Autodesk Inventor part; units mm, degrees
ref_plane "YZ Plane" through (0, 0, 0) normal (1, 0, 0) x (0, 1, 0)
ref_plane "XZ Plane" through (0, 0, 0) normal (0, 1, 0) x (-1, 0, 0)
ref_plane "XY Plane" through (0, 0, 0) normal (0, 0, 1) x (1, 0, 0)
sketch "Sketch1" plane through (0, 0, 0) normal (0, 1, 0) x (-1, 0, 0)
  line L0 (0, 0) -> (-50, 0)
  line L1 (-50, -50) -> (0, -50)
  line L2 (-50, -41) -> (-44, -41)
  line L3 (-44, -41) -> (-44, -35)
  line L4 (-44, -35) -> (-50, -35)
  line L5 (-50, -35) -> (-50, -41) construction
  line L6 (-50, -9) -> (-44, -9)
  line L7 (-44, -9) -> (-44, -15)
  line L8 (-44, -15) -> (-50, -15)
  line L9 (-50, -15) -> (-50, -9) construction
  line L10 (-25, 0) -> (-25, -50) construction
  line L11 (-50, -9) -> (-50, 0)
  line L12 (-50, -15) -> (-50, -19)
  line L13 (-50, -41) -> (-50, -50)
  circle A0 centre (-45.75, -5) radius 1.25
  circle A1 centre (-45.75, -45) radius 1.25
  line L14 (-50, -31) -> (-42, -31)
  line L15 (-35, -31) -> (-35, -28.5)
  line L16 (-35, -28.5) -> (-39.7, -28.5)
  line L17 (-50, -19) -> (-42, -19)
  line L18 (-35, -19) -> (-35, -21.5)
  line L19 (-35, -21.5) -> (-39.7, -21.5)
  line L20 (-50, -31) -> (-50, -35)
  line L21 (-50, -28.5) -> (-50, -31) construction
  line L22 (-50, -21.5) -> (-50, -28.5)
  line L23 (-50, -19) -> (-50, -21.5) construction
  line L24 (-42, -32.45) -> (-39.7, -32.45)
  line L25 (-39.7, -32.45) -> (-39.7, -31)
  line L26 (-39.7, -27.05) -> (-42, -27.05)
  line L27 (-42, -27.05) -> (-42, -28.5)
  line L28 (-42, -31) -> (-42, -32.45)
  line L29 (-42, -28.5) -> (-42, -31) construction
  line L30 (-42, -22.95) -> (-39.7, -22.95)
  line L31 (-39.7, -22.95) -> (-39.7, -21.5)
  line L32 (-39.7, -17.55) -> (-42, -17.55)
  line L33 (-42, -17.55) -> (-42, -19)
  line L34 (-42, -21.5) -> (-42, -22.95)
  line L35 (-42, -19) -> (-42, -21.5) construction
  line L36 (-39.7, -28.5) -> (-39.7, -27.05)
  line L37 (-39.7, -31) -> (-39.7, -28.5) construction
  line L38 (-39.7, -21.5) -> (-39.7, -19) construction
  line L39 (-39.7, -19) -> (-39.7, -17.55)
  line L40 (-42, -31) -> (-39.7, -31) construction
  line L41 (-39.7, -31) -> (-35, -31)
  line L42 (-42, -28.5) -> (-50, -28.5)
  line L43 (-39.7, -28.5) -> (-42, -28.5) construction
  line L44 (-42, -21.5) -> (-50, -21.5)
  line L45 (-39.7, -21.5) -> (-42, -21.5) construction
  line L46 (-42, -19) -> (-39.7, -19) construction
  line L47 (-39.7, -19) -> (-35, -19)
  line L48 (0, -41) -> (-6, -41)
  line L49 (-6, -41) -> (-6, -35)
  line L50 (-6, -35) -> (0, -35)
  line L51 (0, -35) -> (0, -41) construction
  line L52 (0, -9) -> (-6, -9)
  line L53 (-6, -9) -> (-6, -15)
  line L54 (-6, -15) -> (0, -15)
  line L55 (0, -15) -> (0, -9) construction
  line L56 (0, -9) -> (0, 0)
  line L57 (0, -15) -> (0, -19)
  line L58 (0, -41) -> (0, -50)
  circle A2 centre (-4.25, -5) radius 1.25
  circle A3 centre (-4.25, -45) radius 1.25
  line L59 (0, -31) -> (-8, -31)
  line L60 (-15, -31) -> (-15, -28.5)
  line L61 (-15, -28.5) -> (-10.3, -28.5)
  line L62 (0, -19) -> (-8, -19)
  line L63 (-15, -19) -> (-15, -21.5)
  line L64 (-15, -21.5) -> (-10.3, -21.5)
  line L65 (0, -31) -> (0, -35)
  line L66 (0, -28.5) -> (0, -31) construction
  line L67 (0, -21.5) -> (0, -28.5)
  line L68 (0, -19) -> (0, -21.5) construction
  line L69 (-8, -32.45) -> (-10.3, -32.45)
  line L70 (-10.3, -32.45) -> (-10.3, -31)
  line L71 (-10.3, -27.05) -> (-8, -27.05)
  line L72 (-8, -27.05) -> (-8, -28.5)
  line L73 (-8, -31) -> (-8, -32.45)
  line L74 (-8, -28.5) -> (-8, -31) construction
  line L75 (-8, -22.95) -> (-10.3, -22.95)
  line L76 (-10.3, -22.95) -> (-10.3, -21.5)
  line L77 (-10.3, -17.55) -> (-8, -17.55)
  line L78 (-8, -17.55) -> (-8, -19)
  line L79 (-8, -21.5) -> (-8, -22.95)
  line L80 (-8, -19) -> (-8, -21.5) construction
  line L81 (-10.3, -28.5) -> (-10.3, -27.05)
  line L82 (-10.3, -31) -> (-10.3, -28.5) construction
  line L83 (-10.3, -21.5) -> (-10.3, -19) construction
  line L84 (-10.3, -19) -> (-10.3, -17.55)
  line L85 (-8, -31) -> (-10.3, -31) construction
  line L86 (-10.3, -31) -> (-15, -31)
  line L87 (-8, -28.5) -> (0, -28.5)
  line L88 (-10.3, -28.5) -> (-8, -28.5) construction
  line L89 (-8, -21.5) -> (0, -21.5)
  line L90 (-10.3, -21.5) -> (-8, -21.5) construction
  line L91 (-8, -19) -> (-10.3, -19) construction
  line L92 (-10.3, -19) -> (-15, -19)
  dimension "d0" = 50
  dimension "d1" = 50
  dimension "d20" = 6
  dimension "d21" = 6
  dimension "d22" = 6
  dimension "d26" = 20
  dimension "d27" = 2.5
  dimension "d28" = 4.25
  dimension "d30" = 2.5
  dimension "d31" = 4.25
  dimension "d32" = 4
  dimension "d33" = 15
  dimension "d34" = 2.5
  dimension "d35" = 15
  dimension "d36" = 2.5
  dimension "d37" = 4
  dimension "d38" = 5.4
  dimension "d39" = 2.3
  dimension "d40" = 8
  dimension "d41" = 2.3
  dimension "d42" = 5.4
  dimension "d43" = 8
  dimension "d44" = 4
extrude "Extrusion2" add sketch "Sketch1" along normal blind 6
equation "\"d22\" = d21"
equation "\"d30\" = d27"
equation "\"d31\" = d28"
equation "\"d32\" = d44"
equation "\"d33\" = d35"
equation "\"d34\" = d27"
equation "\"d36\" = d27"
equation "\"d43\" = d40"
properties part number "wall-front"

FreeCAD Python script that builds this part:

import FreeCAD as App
import Part
import Sketcher

V = App.Vector


def add_polygon(sketch, points):
    """Adds a closed chain of lines whose ends are joined by coincident constraints."""
    first, n = sketch.GeometryCount, len(points)
    for a, b in zip(points, points[1:] + points[:1]):
        sketch.addGeometry(Part.LineSegment(App.Vector(*a, 0), App.Vector(*b, 0)), False)
    for i in range(n):
        sketch.addConstraint(Sketcher.Constraint("Coincident", first + i, 2, first + (i + 1) % n, 1))

doc = App.newDocument("Part")
body = doc.addObject("PartDesign::Body", "Body")

# Sketch on XZ plane
sketch1 = body.newObject("Sketcher::SketchObject", "Sketch")
sketch1.AttachmentSupport = (doc.getObject("XZ_Plane"), [""])
sketch1.MapMode = "FlatFace"
add_polygon(sketch1, [(0, -9), (0, 0), (50, 0), (50, -9), (44, -9), (44, -15), (50, -15), (50, -19), (42, -19), (42, -17.6), (39.7, -17.6), (39.7, -19), (35, -19), (35, -21.5), (39.7, -21.5), (39.7, -22.9), (42, -22.9), (42, -21.5), (50, -21.5), (50, -28.5), (42, -28.5), (42, -27.1), (39.7, -27.1), (39.7, -28.5), (35, -28.5), (35, -31), (39.7, -31), (39.7, -32.5), (42, -32.5), (42, -31), (50, -31), (50, -35), (44, -35), (44, -41), (50, -41), (50, -50), (0, -50), (0, -41), (6, -41), (6, -35), (0, -35), (0, -31), (8, -31), (8, -32.5), (10.3, -32.5), (10.3, -31), (15, -31), (15, -28.5), (10.3, -28.5), (10.3, -27.1), (8, -27.1), (8, -28.5), (0, -28.5), (0, -21.5), (8, -21.5), (8, -22.9), (10.3, -22.9), (10.3, -21.5), (15, -21.5), (15, -19), (10.3, -19), (10.3, -17.6), (8, -17.6), (8, -19), (0, -19), (0, -15), (6, -15), (6, -9)])  # lines 0-67
sketch1.addGeometry(Part.Circle(V(45.8, -45, 0), V(0, 0, 1), 1.2), False)  # 68
sketch1.addGeometry(Part.Circle(V(4.2, -45, 0), V(0, 0, 1), 1.2), False)  # 69
sketch1.addGeometry(Part.Circle(V(45.8, -5, 0), V(0, 0, 1), 1.2), False)  # 70
sketch1.addGeometry(Part.Circle(V(4.2, -5, 0), V(0, 0, 1), 1.2), False)  # 71
sketch1.addConstraint(Sketcher.Constraint("Vertical", 0))
sketch1.addConstraint(Sketcher.Constraint("Horizontal", 1))
sketch1.addConstraint(Sketcher.Constraint("Vertical", 2))
sketch1.addConstraint(Sketcher.Constraint("Horizontal", 3))
sketch1.addConstraint(Sketcher.Constraint("Vertical", 4))
sketch1.addConstraint(Sketcher.Constraint("Horizontal", 5))
sketch1.addConstraint(Sketcher.Constraint("Vertical", 6))
sketch1.addConstraint(Sketcher.Constraint("Horizontal", 7))
sketch1.addConstraint(Sketcher.Constraint("Vertical", 8))
sketch1.addConstraint(Sketcher.Constraint("Horizontal", 9))
sketch1.addConstraint(Sketcher.Constraint("Vertical", 10))
sketch1.addConstraint(Sketcher.Constraint("Horizontal", 11))
sketch1.addConstraint(Sketcher.Constraint("Vertical", 12))
sketch1.addConstraint(Sketcher.Constraint("Horizontal", 13))
sketch1.addConstraint(Sketcher.Constraint("Vertical", 14))
sketch1.addConstraint(Sketcher.Constraint("Horizontal", 15))
sketch1.addConstraint(Sketcher.Constraint("Vertical", 16))
sketch1.addConstraint(Sketcher.Constraint("Horizontal", 17))
sketch1.addConstraint(Sketcher.Constraint("Vertical", 18))
sketch1.addConstraint(Sketcher.Constraint("Horizontal", 19))
sketch1.addConstraint(Sketcher.Constraint("Vertical", 20))
sketch1.addConstraint(Sketcher.Constraint("Horizontal", 21))
sketch1.addConstraint(Sketcher.Constraint("Vertical", 22))
sketch1.addConstraint(Sketcher.Constraint("Horizontal", 23))
sketch1.addConstraint(Sketcher.Constraint("Vertical", 24))
sketch1.addConstraint(Sketcher.Constraint("Horizontal", 25))
sketch1.addConstraint(Sketcher.Constraint("Vertical", 26))
sketch1.addConstraint(Sketcher.Constraint("Horizontal", 27))
sketch1.addConstraint(Sketcher.Constraint("Vertical", 28))
sketch1.addConstraint(Sketcher.Constraint("Horizontal", 29))
sketch1.addConstraint(Sketcher.Constraint("Vertical", 30))
sketch1.addConstraint(Sketcher.Constraint("Horizontal", 31))
sketch1.addConstraint(Sketcher.Constraint("Vertical", 32))
sketch1.addConstraint(Sketcher.Constraint("Horizontal", 33))
sketch1.addConstraint(Sketcher.Constraint("Vertical", 34))
sketch1.addConstraint(Sketcher.Constraint("Horizontal", 35))
sketch1.addConstraint(Sketcher.Constraint("Vertical", 36))
sketch1.addConstraint(Sketcher.Constraint("Horizontal", 37))
sketch1.addConstraint(Sketcher.Constraint("Vertical", 38))
sketch1.addConstraint(Sketcher.Constraint("Horizontal", 39))
sketch1.addConstraint(Sketcher.Constraint("Vertical", 40))
sketch1.addConstraint(Sketcher.Constraint("Horizontal", 41))
sketch1.addConstraint(Sketcher.Constraint("Vertical", 42))
sketch1.addConstraint(Sketcher.Constraint("Horizontal", 43))
sketch1.addConstraint(Sketcher.Constraint("Vertical", 44))
sketch1.addConstraint(Sketcher.Constraint("Horizontal", 45))
sketch1.addConstraint(Sketcher.Constraint("Vertical", 46))
sketch1.addConstraint(Sketcher.Constraint("Horizontal", 47))
sketch1.addConstraint(Sketcher.Constraint("Vertical", 48))
sketch1.addConstraint(Sketcher.Constraint("Horizontal", 49))
sketch1.addConstraint(Sketcher.Constraint("Vertical", 50))
sketch1.addConstraint(Sketcher.Constraint("Horizontal", 51))
sketch1.addConstraint(Sketcher.Constraint("Vertical", 52))
sketch1.addConstraint(Sketcher.Constraint("Horizontal", 53))
sketch1.addConstraint(Sketcher.Constraint("Vertical", 54))
sketch1.addConstraint(Sketcher.Constraint("Horizontal", 55))
sketch1.addConstraint(Sketcher.Constraint("Vertical", 56))
sketch1.addConstraint(Sketcher.Constraint("Horizontal", 57))
sketch1.addConstraint(Sketcher.Constraint("Vertical", 58))
sketch1.addConstraint(Sketcher.Constraint("Horizontal", 59))
sketch1.addConstraint(Sketcher.Constraint("Vertical", 60))
sketch1.addConstraint(Sketcher.Constraint("Horizontal", 61))
sketch1.addConstraint(Sketcher.Constraint("Vertical", 62))
sketch1.addConstraint(Sketcher.Constraint("Horizontal", 63))
sketch1.addConstraint(Sketcher.Constraint("Vertical", 64))
sketch1.addConstraint(Sketcher.Constraint("Horizontal", 65))
sketch1.addConstraint(Sketcher.Constraint("Vertical", 66))
sketch1.addConstraint(Sketcher.Constraint("Horizontal", 67))
sketch1.addConstraint(Sketcher.Constraint("Coincident", 0, 2, -1, 1))
sketch1.addConstraint(Sketcher.Constraint("Equal", 68, 69))
sketch1.addConstraint(Sketcher.Constraint("Equal", 69, 70))
sketch1.addConstraint(Sketcher.Constraint("Equal", 70, 71))
sketch1.addConstraint(Sketcher.Constraint("PointOnObject", 35, 2, -2))
sketch1.addConstraint(Sketcher.Constraint("PointOnObject", 39, 2, -2))
sketch1.addConstraint(Sketcher.Constraint("PointOnObject", 51, 2, -2))
sketch1.addConstraint(Sketcher.Constraint("PointOnObject", 63, 2, -2))
sketch1.addConstraint(Sketcher.Constraint("Horizontal", 68, 3, 69, 3))
sketch1.addConstraint(Sketcher.Constraint("Horizontal", 70, 3, 71, 3))
sketch1.addConstraint(Sketcher.Constraint("Horizontal", 7, 2, 10, 2))
sketch1.addConstraint(Sketcher.Constraint("Horizontal", 13, 2, 16, 2))
sketch1.addConstraint(Sketcher.Constraint("Horizontal", 19, 2, 22, 2))
sketch1.addConstraint(Sketcher.Constraint("Horizontal", 25, 2, 28, 2))
sketch1.addConstraint(Sketcher.Constraint("Horizontal", 33, 2, 36, 2))
sketch1.addConstraint(Sketcher.Constraint("Horizontal", 31, 2, 38, 2))
sketch1.addConstraint(Sketcher.Constraint("Horizontal", 29, 2, 40, 2))
sketch1.addConstraint(Sketcher.Constraint("Horizontal", 27, 2, 42, 2))
sketch1.addConstraint(Sketcher.Constraint("Horizontal", 41, 2, 44, 2))
sketch1.addConstraint(Sketcher.Constraint("Horizontal", 23, 2, 46, 2))
sketch1.addConstraint(Sketcher.Constraint("Horizontal", 21, 2, 48, 2))
sketch1.addConstraint(Sketcher.Constraint("Horizontal", 47, 2, 50, 2))
sketch1.addConstraint(Sketcher.Constraint("Horizontal", 17, 2, 52, 2))
sketch1.addConstraint(Sketcher.Constraint("Horizontal", 15, 2, 54, 2))
sketch1.addConstraint(Sketcher.Constraint("Horizontal", 53, 2, 56, 2))
sketch1.addConstraint(Sketcher.Constraint("Horizontal", 11, 2, 58, 2))
sketch1.addConstraint(Sketcher.Constraint("Horizontal", 9, 2, 60, 2))
sketch1.addConstraint(Sketcher.Constraint("Horizontal", 59, 2, 62, 2))
sketch1.addConstraint(Sketcher.Constraint("Horizontal", 5, 2, 64, 2))
sketch1.addConstraint(Sketcher.Constraint("Horizontal", 3, 2, 66, 2))
sketch1.addConstraint(Sketcher.Constraint("Vertical", 68, 3, 70, 3))
sketch1.addConstraint(Sketcher.Constraint("Vertical", 69, 3, 71, 3))
sketch1.addConstraint(Sketcher.Constraint("Vertical", 2, 2, 5, 2))
sketch1.addConstraint(Sketcher.Constraint("Vertical", 10, 2, 13, 2))
sketch1.addConstraint(Sketcher.Constraint("Vertical", 8, 2, 15, 2))
sketch1.addConstraint(Sketcher.Constraint("Vertical", 6, 2, 17, 2))
sketch1.addConstraint(Sketcher.Constraint("Vertical", 16, 2, 19, 2))
sketch1.addConstraint(Sketcher.Constraint("Vertical", 14, 2, 21, 2))
sketch1.addConstraint(Sketcher.Constraint("Vertical", 12, 2, 23, 2))
sketch1.addConstraint(Sketcher.Constraint("Vertical", 22, 2, 25, 2))
sketch1.addConstraint(Sketcher.Constraint("Vertical", 20, 2, 27, 2))
sketch1.addConstraint(Sketcher.Constraint("Vertical", 18, 2, 29, 2))
sketch1.addConstraint(Sketcher.Constraint("Vertical", 4, 2, 31, 2))
sketch1.addConstraint(Sketcher.Constraint("Vertical", 30, 2, 33, 2))
sketch1.addConstraint(Sketcher.Constraint("Vertical", 44, 2, 47, 2))
sketch1.addConstraint(Sketcher.Constraint("Vertical", 42, 2, 49, 2))
sketch1.addConstraint(Sketcher.Constraint("Vertical", 50, 2, 53, 2))
sketch1.addConstraint(Sketcher.Constraint("Vertical", 48, 2, 55, 2))
sketch1.addConstraint(Sketcher.Constraint("Vertical", 46, 2, 57, 2))
sketch1.addConstraint(Sketcher.Constraint("Vertical", 56, 2, 59, 2))
sketch1.addConstraint(Sketcher.Constraint("Vertical", 54, 2, 61, 2))
sketch1.addConstraint(Sketcher.Constraint("Vertical", 38, 2, 65, 2))
sketch1.addConstraint(Sketcher.Constraint("Equal", 33, 37))
sketch1.addConstraint(Sketcher.Constraint("Equal", 29, 41))
sketch1.addConstraint(Sketcher.Constraint("Equal", 27, 43))
sketch1.addConstraint(Sketcher.Constraint("Equal", 25, 45))
sketch1.addConstraint(Sketcher.Constraint("Equal", 67, 4))
sketch1.addConstraint(Sketcher.Constraint("Equal", 10, 14))
sketch1.addConstraint(Sketcher.Constraint("Equal", 16, 20))
sketch1.addConstraint(Sketcher.Constraint("Equal", 12, 24))
sketch1.addConstraint(Sketcher.Constraint("Equal", 22, 26))
sketch1.addConstraint(Sketcher.Constraint("Equal", 6, 30))
sketch1.addConstraint(Sketcher.Constraint("Equal", 4, 32))
sketch1.addConstraint(Sketcher.Constraint("Equal", 2, 34))
sketch1.addConstraint(Sketcher.Constraint("Diameter", 68, 2.5))
sketch1.addConstraint(Sketcher.Constraint("DistanceX", 1, 1, 1, 2, 50.0))
sketch1.addConstraint(Sketcher.Constraint("DistanceX", 3, 2, 3, 1, 6.0))
sketch1.addConstraint(Sketcher.Constraint("DistanceX", 7, 2, 7, 1, 8.0))
sketch1.addConstraint(Sketcher.Constraint("DistanceY", 6, 2, 6, 1, 4.0))
sketch1.addConstraint(Sketcher.Constraint("DistanceX", 9, 2, 9, 1, 2.3))
sketch1.addConstraint(Sketcher.Constraint("DistanceY", 12, 2, 12, 1, 2.5))
sketch1.addConstraint(Sketcher.Constraint("DistanceY", 4, 2, -1, 1, 15.0))
sketch1.addConstraint(Sketcher.Constraint("DistanceY", 34, 2, -1, 1, 50.0))
sketch1.addConstraint(Sketcher.Constraint("DistanceX", -1, 1, 45, 2, 15.0))
sketch1.addConstraint(Sketcher.Constraint("DistanceX", -1, 1, 69, 3, 4.25))
sketch1.addConstraint(Sketcher.Constraint("DistanceY", 68, 3, -1, 1, 45.0))
sketch1.addConstraint(Sketcher.Constraint("DistanceY", 70, 3, -1, 1, 5.0))
sketch1.addConstraint(Sketcher.Constraint("DistanceY", 8, 1, 8, 2, 1.45))
sketch1.addConstraint(Sketcher.Constraint("DistanceX", -1, 1, 68, 3, 45.75))
pad1 = body.newObject("PartDesign::Pad", "Pad")
pad1.Profile = sketch1
pad1.Length = 6
pad1.Reversed = True

doc.recompute()
